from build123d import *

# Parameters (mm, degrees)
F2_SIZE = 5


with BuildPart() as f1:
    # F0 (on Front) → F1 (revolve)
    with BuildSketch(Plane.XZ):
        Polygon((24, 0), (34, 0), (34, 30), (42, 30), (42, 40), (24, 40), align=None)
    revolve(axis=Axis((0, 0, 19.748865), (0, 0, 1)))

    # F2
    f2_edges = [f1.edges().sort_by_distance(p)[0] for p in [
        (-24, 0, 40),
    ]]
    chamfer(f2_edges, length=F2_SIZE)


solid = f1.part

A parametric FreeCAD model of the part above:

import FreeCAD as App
import Part
import Sketcher


def edges_at(feature, points):
    """Names of the edges that pass closest to the given points."""
    edges = feature.Shape.Edges
    near = lambda p: min(range(len(edges)), key=lambda i: edges[i].distToShape(Part.Vertex(*p))[0])
    return sorted({f"Edge{near(p) + 1}" for p in points})

doc = App.newDocument("Part")
params = doc.addObject("Spreadsheet::Sheet", "Params")
for row, (alias, value) in enumerate([
    ("sketch1_width", "10 mm"),
    ("sketch1_width2", "8 mm"),
    ("sketch1_height", "30 mm"),
    ("revolution_angle", "360 deg"),
    ("chamfer_size", "5 mm"),
], start=1):
    params.set(f"A{row}", alias)
    params.set(f"B{row}", "=" + value)
    params.setAlias(f"B{row}", alias)

body = doc.addObject("PartDesign::Body", "Body")

sketch1 = body.newObject("Sketcher::SketchObject", "Sketch")
sketch1.AttachmentSupport = (doc.getObject("XZ_Plane"), [""])
sketch1.MapMode = "FlatFace"
sketch1.addGeometry([
    Part.LineSegment(App.Vector(24, 0, 0), App.Vector(34, 0, 0)),
    Part.LineSegment(App.Vector(34, 0, 0), App.Vector(34, 30, 0)),
    Part.LineSegment(App.Vector(34, 30, 0), App.Vector(42, 30, 0)),
    Part.LineSegment(App.Vector(42, 30, 0), App.Vector(42, 40, 0)),
    Part.LineSegment(App.Vector(42, 40, 0), App.Vector(24, 40, 0)),
    Part.LineSegment(App.Vector(24, 40, 0), App.Vector(24, 0, 0)),
], False)
sketch1.addConstraint([
    Sketcher.Constraint("Coincident", 0, 2, 1, 1),
    Sketcher.Constraint("Coincident", 1, 2, 2, 1),
    Sketcher.Constraint("Coincident", 2, 2, 3, 1),
    Sketcher.Constraint("Coincident", 3, 2, 4, 1),
    Sketcher.Constraint("Coincident", 4, 2, 5, 1),
    Sketcher.Constraint("Coincident", 5, 2, 0, 1),
    Sketcher.Constraint("Horizontal", 0),
    Sketcher.Constraint("Vertical", 1),
    Sketcher.Constraint("Horizontal", 2),
    Sketcher.Constraint("Vertical", 3),
    Sketcher.Constraint("Horizontal", 4),
    Sketcher.Constraint("Vertical", 5),
    Sketcher.Constraint("PointOnObject", 0, 2, -1),
    Sketcher.Constraint("Equal", 0, 3),
    Sketcher.Constraint("DistanceX", 0, 1, 0, 2, 10.0),
    Sketcher.Constraint("DistanceX", 2, 1, 2, 2, 8.0),
    Sketcher.Constraint("DistanceY", 1, 1, 1, 2, 30.0),
    Sketcher.Constraint("DistanceX", -1, 1, 0, 2, 34.0),
])
sketch1.setExpression("Constraints[14]", "Params.sketch1_width")
sketch1.setExpression("Constraints[15]", "Params.sketch1_width2")
sketch1.setExpression("Constraints[16]", "Params.sketch1_height")
revolution = body.newObject("PartDesign::Revolution", "Revolution")
revolution.Profile = sketch1
revolution.ReferenceAxis = (sketch1, ["V_Axis"])
revolution.setExpression("Angle", "Params.revolution_angle")
doc.recompute()

chamfer = body.newObject("PartDesign::Chamfer", "Chamfer")
chamfer.Base = (revolution, edges_at(revolution, [(-24, 0, 40)]))
chamfer.setExpression("Size", "Params.chamfer_size")

doc.recompute()
